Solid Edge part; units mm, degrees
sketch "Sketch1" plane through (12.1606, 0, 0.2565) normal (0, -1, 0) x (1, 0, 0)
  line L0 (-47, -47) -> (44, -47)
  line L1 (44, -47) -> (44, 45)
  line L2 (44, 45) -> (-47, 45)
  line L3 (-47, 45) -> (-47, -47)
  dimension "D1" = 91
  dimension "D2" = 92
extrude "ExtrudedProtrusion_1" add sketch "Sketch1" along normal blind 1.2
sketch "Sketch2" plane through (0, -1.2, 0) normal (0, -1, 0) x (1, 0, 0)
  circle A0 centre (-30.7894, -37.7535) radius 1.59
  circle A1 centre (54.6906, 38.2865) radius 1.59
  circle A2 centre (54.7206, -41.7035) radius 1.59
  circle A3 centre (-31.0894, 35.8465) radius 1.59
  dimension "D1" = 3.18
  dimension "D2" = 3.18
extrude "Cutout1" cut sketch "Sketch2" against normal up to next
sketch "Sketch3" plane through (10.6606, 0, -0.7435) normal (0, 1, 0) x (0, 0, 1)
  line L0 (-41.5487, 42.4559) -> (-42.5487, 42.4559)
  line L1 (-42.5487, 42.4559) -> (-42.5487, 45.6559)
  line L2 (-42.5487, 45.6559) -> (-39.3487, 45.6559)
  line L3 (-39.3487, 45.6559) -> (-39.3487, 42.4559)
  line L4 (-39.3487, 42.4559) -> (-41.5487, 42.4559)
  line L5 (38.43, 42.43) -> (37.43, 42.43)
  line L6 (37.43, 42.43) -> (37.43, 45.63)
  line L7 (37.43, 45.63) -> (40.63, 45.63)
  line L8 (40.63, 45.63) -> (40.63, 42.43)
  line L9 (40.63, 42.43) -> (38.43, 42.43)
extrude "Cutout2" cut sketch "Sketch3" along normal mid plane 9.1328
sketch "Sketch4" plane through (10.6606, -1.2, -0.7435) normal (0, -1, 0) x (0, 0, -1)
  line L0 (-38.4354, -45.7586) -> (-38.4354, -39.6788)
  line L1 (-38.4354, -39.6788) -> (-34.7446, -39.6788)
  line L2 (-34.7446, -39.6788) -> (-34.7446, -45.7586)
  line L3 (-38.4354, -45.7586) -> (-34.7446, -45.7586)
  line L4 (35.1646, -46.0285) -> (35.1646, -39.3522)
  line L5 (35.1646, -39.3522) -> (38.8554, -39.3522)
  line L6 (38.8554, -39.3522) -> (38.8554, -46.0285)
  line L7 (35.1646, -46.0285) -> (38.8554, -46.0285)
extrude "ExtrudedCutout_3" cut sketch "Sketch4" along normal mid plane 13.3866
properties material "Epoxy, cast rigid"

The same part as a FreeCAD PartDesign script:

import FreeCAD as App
import Part
import Sketcher

V = App.Vector
Q = App.Units.Quantity

doc = App.newDocument("Part")
body = doc.addObject("PartDesign::Body", "Body")

# Sketch on XZ plane
sketch1 = body.newObject("Sketcher::SketchObject", "Sketch")
sketch1.AttachmentSupport = (doc.getObject("XZ_Plane"), [""])
sketch1.MapMode = "FlatFace"
sketch1.addGeometry([
    Part.LineSegment(V(-35, 45, 0), V(-35, -47, 0)),
    Part.LineSegment(V(-35, -47, 0), V(56, -47, 0)),
    Part.LineSegment(V(56, -47, 0), V(56, 45, 0)),
    Part.LineSegment(V(56, 45, 0), V(-35, 45, 0)),
], False)
sketch1.addConstraint([
    Sketcher.Constraint("Coincident", 0, 2, 1, 1),
    Sketcher.Constraint("Coincident", 1, 2, 2, 1),
    Sketcher.Constraint("Coincident", 2, 2, 3, 1),
    Sketcher.Constraint("Coincident", 3, 2, 0, 1),
    Sketcher.Constraint("Vertical", 0),
    Sketcher.Constraint("Horizontal", 1),
    Sketcher.Constraint("Vertical", 2),
    Sketcher.Constraint("Horizontal", 3),
    Sketcher.Constraint("DistanceX", 1, 1, 1, 2, Q("91 mm")),
    Sketcher.Constraint("DistanceY", 0, 2, 0, 1, Q("92 mm")),
    Sketcher.Constraint("DistanceX", 0, 2, -1, 1, Q("34.8394 mm")),
    Sketcher.Constraint("DistanceY", 0, 2, -1, 1, Q("46.7435 mm")),
])
pad1 = body.newObject("PartDesign::Pad", "Pad")
pad1.Profile = sketch1
pad1.Length = 1.2

# Sketch on XZ plane
sketch2 = body.newObject("Sketcher::SketchObject", "Sketch001")
sketch2.AttachmentSupport = (doc.getObject("XZ_Plane"), [""])
sketch2.MapMode = "FlatFace"
sketch2.AttachmentOffset = App.Placement(V(0, 0, 1.2), App.Rotation())
sketch2.addGeometry([
    Part.Circle(V(-30.8, -37.8, 0), V(0, 0, 1), 1.6),
    Part.Circle(V(54.7, 38.3, 0), V(0, 0, 1), 1.6),
    Part.Circle(V(54.7, -41.7, 0), V(0, 0, 1), 1.6),
    Part.Circle(V(-31.1, 35.8, 0), V(0, 0, 1), 1.6),
], False)
sketch2.addConstraint([
    Sketcher.Constraint("Equal", 0, 1),
    Sketcher.Constraint("Equal", 1, 2),
    Sketcher.Constraint("Equal", 2, 3),
    Sketcher.Constraint("Diameter", 0, Q("3.18 mm")),
    Sketcher.Constraint("DistanceX", 3, 3, 0, 3, Q("0.3 mm")),
    Sketcher.Constraint("DistanceY", 0, 3, 3, 3, Q("73.6 mm")),
    Sketcher.Constraint("DistanceX", 0, 3, 1, 3, Q("85.48 mm")),
    Sketcher.Constraint("DistanceY", 0, 3, 1, 3, Q("76.04 mm")),
    Sketcher.Constraint("DistanceX", 1, 3, 2, 3, Q("0.03 mm")),
    Sketcher.Constraint("DistanceY", 2, 3, 1, 3, Q("79.99 mm")),
    Sketcher.Constraint("DistanceX", 0, 3, -1, 1, Q("30.7894 mm")),
    Sketcher.Constraint("DistanceY", 0, 3, -1, 1, Q("37.7535 mm")),
])
pocket1 = body.newObject("PartDesign::Pocket", "Pocket")
pocket1.Profile = sketch2
pocket1.Length = 1.2

# Sketch on XZ plane
sketch3 = body.newObject("Sketcher::SketchObject", "Sketch002")
sketch3.AttachmentSupport = (doc.getObject("XZ_Plane"), [""])
sketch3.MapMode = "FlatFace"
sketch3.addGeometry([
    Part.LineSegment(V(53.1, -43.3, 0), V(53.1, -40.1, 0)),  # 0
    Part.LineSegment(V(53.1, -40.1, 0), V(56.3, -40.1, 0)),  # 1
    Part.LineSegment(V(56.3, -40.1, 0), V(56.3, -43.3, 0)),  # 2
    Part.LineSegment(V(56.3, -43.3, 0), V(53.1, -43.3, 0)),  # 3
    Part.LineSegment(V(53.1, 36.7, 0), V(53.1, 39.9, 0)),  # 4
    Part.LineSegment(V(53.1, 39.9, 0), V(56.3, 39.9, 0)),  # 5
    Part.LineSegment(V(56.3, 39.9, 0), V(56.3, 36.7, 0)),  # 6
    Part.LineSegment(V(56.3, 36.7, 0), V(53.1, 36.7, 0)),  # 7
], False)
sketch3.addConstraint([
    Sketcher.Constraint("Coincident", 0, 2, 1, 1),
    Sketcher.Constraint("Coincident", 1, 2, 2, 1),
    Sketcher.Constraint("Coincident", 2, 2, 3, 1),
    Sketcher.Constraint("Coincident", 3, 2, 0, 1),
    Sketcher.Constraint("Coincident", 4, 2, 5, 1),
    Sketcher.Constraint("Coincident", 5, 2, 6, 1),
    Sketcher.Constraint("Coincident", 6, 2, 7, 1),
    Sketcher.Constraint("Coincident", 7, 2, 4, 1),
    Sketcher.Constraint("Vertical", 0),
    Sketcher.Constraint("Horizontal", 1),
    Sketcher.Constraint("Vertical", 2),
    Sketcher.Constraint("Horizontal", 3),
    Sketcher.Constraint("Vertical", 4),
    Sketcher.Constraint("Horizontal", 5),
    Sketcher.Constraint("Vertical", 6),
    Sketcher.Constraint("Horizontal", 7),
    Sketcher.Constraint("Equal", 3, 5),
    Sketcher.Constraint("Equal", 7, 0),
    Sketcher.Constraint("Equal", 2, 4),
    Sketcher.Constraint("DistanceX", 1, 1, 1, 2, Q("3.2 mm")),
    Sketcher.Constraint("DistanceX", 4, 2, 0, 2, Q("0.026 mm")),
    Sketcher.Constraint("DistanceX", -1, 1, 0, 2, Q("53.1165 mm")),
    Sketcher.Constraint("DistanceY", 0, 2, -1, 1, Q("40.0922 mm")),
    Sketcher.Constraint("DistanceY", -1, 1, 4, 2, Q("39.8865 mm")),
])
pocket2 = body.newObject("PartDesign::Pocket", "Pocket001")
pocket2.Profile = sketch3
pocket2.Length = 9.1328
pocket2.Midplane = True

# Sketch on XZ plane
sketch4 = body.newObject("Sketcher::SketchObject", "Sketch003")
sketch4.AttachmentSupport = (doc.getObject("XZ_Plane"), [""])
sketch4.MapMode = "FlatFace"
sketch4.AttachmentOffset = App.Placement(V(0, 0, 1.2), App.Rotation())
sketch4.addGeometry([
    Part.LineSegment(V(-29, 37.7, 0), V(-35.1, 37.7, 0)),  # 0
    Part.LineSegment(V(-35.1, 37.7, 0), V(-35.1, 34, 0)),  # 1
    Part.LineSegment(V(-35.1, 34, 0), V(-29, 34, 0)),  # 2
    Part.LineSegment(V(-29, 34, 0), V(-29, 37.7, 0)),  # 3
    Part.LineSegment(V(-28.7, -35.9, 0), V(-35.4, -35.9, 0)),  # 4
    Part.LineSegment(V(-35.4, -35.9, 0), V(-35.4, -39.6, 0)),  # 5
    Part.LineSegment(V(-35.4, -39.6, 0), V(-28.7, -39.6, 0)),  # 6
    Part.LineSegment(V(-28.7, -39.6, 0), V(-28.7, -35.9, 0)),  # 7
], False)
sketch4.addConstraint([
    Sketcher.Constraint("Coincident", 0, 2, 1, 1),
    Sketcher.Constraint("Coincident", 1, 2, 2, 1),
    Sketcher.Constraint("Coincident", 2, 2, 3, 1),
    Sketcher.Constraint("Coincident", 3, 2, 0, 1),
    Sketcher.Constraint("Coincident", 4, 2, 5, 1),
    Sketcher.Constraint("Coincident", 5, 2, 6, 1),
    Sketcher.Constraint("Coincident", 6, 2, 7, 1),
    Sketcher.Constraint("Coincident", 7, 2, 4, 1),
    Sketcher.Constraint("Horizontal", 0),
    Sketcher.Constraint("Vertical", 1),
    Sketcher.Constraint("Horizontal", 2),
    Sketcher.Constraint("Vertical", 3),
    Sketcher.Constraint("Horizontal", 4),
    Sketcher.Constraint("Vertical", 5),
    Sketcher.Constraint("Horizontal", 6),
    Sketcher.Constraint("Vertical", 7),
    Sketcher.Constraint("Equal", 3, 5),
    Sketcher.Constraint("DistanceY", 4, 2, 0, 2, Q("73.6 mm")),
    Sketcher.Constraint("DistanceX", 4, 2, 1, 2, Q("0.27 mm")),
    Sketcher.Constraint("DistanceX", 0, 2, 0, 1, Q("6.0798 mm")),
    Sketcher.Constraint("DistanceX", 4, 2, 4, 1, Q("6.6763 mm")),
    Sketcher.Constraint("DistanceY", 1, 2, 1, 1, Q("3.6908 mm")),
    Sketcher.Constraint("DistanceX", 0, 2, -1, 1, Q("35.098 mm")),
    Sketcher.Constraint("DistanceY", -1, 1, 0, 2, Q("37.692 mm")),
])
pocket3 = body.newObject("PartDesign::Pocket", "Pocket002")
pocket3.Profile = sketch4
pocket3.Length = 13.3866
pocket3.Midplane = True

doc.recompute()
